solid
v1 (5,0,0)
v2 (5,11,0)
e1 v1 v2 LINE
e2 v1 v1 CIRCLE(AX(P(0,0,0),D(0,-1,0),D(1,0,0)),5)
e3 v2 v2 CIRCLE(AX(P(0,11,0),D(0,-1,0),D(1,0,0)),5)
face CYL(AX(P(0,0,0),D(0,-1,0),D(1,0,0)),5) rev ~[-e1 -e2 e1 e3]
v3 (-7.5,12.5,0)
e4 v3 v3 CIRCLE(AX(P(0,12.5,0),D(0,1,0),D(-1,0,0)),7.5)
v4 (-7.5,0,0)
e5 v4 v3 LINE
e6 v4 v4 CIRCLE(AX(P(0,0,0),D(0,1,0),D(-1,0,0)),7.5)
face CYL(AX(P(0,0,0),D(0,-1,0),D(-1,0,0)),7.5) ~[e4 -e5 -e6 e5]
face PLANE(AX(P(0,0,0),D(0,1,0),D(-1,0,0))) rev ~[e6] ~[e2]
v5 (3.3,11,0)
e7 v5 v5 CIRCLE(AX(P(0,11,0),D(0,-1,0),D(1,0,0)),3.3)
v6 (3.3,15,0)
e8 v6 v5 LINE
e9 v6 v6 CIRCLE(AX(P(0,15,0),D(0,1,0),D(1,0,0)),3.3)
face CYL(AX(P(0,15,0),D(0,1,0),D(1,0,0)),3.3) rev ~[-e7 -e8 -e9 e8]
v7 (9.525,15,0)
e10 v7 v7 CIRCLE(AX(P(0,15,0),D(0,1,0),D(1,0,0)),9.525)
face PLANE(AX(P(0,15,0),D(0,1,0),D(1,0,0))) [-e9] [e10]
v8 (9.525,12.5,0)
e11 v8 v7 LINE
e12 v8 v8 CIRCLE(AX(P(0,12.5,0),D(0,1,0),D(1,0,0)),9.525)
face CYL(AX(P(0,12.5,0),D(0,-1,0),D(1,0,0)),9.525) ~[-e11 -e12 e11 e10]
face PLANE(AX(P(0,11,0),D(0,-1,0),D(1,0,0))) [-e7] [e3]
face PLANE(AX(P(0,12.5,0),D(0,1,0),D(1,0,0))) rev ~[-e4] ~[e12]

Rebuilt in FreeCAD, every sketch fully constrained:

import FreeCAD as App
import Part
import Sketcher
from FreeCAD import Vector
Q = App.Units.Quantity

doc = App.newDocument("Part")
body = doc.addObject("PartDesign::Body", "Body")

# Sketch on XZ plane
sketch1 = body.newObject("Sketcher::SketchObject", "Sketch")
sketch1.AttachmentSupport = (doc.getObject("XZ_Plane"), [""])
sketch1.MapMode = "FlatFace"
sketch1.addGeometry(Part.Circle(Vector(0, 0, 0), Vector(0, 0, 1), 7.5), False)
sketch1.addConstraint(Sketcher.Constraint("Coincident", 0, 3, -1, 1))
sketch1.addConstraint(Sketcher.Constraint("Diameter", 0, Q("15 mm")))
pad1 = body.newObject("PartDesign::Pad", "Pad")
pad1.Profile = sketch1
pad1.Length = 12.5
pad1.Reversed = True

# Sketch on XZ plane
sketch2 = body.newObject("Sketcher::SketchObject", "Sketch001")
sketch2.AttachmentSupport = (doc.getObject("XZ_Plane"), [""])
sketch2.MapMode = "FlatFace"
sketch2.AttachmentOffset = App.Placement(Vector(0, 0, -12.5), App.Rotation())
sketch2.addGeometry(Part.Circle(Vector(0, 0, 0), Vector(0, 0, 1), 9.525), False)
sketch2.addConstraint(Sketcher.Constraint("Coincident", 0, 3, -1, 1))
sketch2.addConstraint(Sketcher.Constraint("Diameter", 0, Q("19.05 mm")))
pad2 = body.newObject("PartDesign::Pad", "Pad001")
pad2.Profile = sketch2
pad2.Length = 2.5
pad2.Reversed = True

# Sketch on XZ plane
sketch3 = body.newObject("Sketcher::SketchObject", "Sketch002")
sketch3.AttachmentSupport = (doc.getObject("XZ_Plane"), [""])
sketch3.MapMode = "FlatFace"
sketch3.AttachmentOffset = App.Placement(Vector(0, 0, -15), App.Rotation())
sketch3.addGeometry(Part.Circle(Vector(0, 0, 0), Vector(0, 0, 1), 3.3), False)
sketch3.addConstraint(Sketcher.Constraint("Coincident", 0, 3, -1, 1))
sketch3.addConstraint(Sketcher.Constraint("Diameter", 0, Q("6.6 mm")))
pocket1 = body.newObject("PartDesign::Pocket", "Pocket")
pocket1.Profile = sketch3
pocket1.Length = 17.75
pocket1.Reversed = True

# Sketch on XZ plane
sketch4 = body.newObject("Sketcher::SketchObject", "Sketch003")
sketch4.AttachmentSupport = (doc.getObject("XZ_Plane"), [""])
sketch4.MapMode = "FlatFace"
sketch4.addGeometry(Part.Circle(Vector(0, 0, 0), Vector(0, 0, 1), 5), False)
sketch4.addGeometry(Part.Circle(Vector(0, 0, 0), Vector(0, 0, 1), 3.3), False)
sketch4.addConstraint(Sketcher.Constraint("Coincident", 0, 3, -1, 1))
sketch4.addConstraint(Sketcher.Constraint("Coincident", 1, 3, -1, 1))
sketch4.addConstraint(Sketcher.Constraint("Diameter", 0, Q("10 mm")))
sketch4.addConstraint(Sketcher.Constraint("Diameter", 1, Q("6.6 mm")))
pocket2 = body.newObject("PartDesign::Pocket", "Pocket001")
pocket2.Profile = sketch4
pocket2.Length = 11

doc.recompute()
